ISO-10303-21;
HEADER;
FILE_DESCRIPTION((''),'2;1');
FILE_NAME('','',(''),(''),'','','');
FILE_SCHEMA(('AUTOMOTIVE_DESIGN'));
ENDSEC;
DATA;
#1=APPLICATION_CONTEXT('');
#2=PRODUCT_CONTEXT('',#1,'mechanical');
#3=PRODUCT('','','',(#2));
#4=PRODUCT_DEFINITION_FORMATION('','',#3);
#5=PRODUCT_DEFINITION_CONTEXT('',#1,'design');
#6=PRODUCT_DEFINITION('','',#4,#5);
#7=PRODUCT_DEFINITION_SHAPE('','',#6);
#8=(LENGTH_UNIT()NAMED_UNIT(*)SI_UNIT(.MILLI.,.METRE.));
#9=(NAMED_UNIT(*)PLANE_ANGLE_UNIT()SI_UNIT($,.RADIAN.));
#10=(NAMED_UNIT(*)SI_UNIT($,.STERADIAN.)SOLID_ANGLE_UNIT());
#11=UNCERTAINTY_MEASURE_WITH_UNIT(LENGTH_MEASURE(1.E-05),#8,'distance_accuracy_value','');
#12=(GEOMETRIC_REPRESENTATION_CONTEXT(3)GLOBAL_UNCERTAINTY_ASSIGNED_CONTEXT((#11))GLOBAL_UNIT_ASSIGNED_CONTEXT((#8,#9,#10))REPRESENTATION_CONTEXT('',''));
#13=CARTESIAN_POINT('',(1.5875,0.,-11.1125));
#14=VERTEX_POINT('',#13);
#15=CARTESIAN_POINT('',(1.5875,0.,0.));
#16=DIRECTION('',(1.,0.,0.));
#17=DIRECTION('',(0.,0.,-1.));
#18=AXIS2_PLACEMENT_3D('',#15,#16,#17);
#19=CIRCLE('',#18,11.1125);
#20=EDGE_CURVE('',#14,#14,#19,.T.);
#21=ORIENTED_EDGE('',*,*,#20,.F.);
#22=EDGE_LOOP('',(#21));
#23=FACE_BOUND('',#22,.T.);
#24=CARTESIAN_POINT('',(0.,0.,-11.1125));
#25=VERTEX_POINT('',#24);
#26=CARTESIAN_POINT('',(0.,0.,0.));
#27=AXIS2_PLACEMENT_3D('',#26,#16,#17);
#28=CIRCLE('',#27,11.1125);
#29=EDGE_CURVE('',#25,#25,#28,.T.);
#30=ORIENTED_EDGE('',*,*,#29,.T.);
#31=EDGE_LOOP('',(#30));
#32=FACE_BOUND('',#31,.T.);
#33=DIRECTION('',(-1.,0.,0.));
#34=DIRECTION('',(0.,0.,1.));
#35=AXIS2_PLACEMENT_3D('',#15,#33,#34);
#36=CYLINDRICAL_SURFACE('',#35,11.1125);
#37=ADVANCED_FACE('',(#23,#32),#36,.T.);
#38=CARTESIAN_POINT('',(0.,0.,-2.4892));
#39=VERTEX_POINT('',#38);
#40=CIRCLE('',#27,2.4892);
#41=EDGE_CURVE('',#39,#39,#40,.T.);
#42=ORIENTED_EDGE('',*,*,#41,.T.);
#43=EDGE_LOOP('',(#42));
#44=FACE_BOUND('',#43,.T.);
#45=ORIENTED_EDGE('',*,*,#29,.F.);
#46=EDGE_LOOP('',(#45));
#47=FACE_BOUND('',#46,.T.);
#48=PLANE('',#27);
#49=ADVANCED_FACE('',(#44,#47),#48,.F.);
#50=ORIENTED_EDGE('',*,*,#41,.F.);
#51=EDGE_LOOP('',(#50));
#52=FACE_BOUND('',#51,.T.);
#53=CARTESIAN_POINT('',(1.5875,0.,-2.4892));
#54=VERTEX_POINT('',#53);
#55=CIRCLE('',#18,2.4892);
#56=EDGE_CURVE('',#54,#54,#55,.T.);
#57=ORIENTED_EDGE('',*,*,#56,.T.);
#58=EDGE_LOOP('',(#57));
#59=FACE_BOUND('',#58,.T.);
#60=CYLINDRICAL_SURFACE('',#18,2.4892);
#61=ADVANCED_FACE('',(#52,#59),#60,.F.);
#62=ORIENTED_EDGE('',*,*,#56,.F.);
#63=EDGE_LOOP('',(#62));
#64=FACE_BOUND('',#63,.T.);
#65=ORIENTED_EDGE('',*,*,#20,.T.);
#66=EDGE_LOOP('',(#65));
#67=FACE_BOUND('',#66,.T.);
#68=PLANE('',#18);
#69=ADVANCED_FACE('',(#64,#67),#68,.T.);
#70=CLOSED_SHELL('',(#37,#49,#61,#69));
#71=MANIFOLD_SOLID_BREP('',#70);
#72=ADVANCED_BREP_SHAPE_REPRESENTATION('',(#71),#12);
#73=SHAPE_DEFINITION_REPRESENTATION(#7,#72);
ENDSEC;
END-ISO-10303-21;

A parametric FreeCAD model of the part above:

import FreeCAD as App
import Part
import Sketcher
from FreeCAD import Vector
Q = App.Units.Quantity

doc = App.newDocument("Part")
params = doc.addObject("Spreadsheet::Sheet", "Params")
for row, (alias, value) in enumerate([
    ("sketch1_diameter", "0.875 in"),
    ("pad1_length", "0.0625 in"),
    ("sketch2_diameter", "0.196 in"),
    ("hole_diameter", "0.196 in"),
    ("hole_depth", "15 mm"),
], start=1):
    params.set(f"A{row}", alias)
    params.set(f"B{row}", "=" + value)
    params.setAlias(f"B{row}", alias)

body = doc.addObject("PartDesign::Body", "Body")

# Sketch on YZ plane
sketch1 = body.newObject("Sketcher::SketchObject", "Sketch")
sketch1.AttachmentSupport = (doc.getObject("YZ_Plane"), [""])
sketch1.MapMode = "FlatFace"
sketch1.addGeometry(Part.Circle(Vector(0, 0, 0), Vector(0, 0, 1), 11), False)
sketch1.addConstraint([
    Sketcher.Constraint("Coincident", 0, 3, -1, 1),
    Sketcher.Constraint("Diameter", 0, Q("0.875 in")),
])
sketch1.setExpression("Constraints[1]", "Params.sketch1_diameter")
pad1 = body.newObject("PartDesign::Pad", "Pad")
pad1.Profile = sketch1
pad1.setExpression("Length", "Params.pad1_length")

# Sketch on YZ plane
sketch2 = body.newObject("Sketcher::SketchObject", "Sketch001")
sketch2.AttachmentSupport = (doc.getObject("YZ_Plane"), [""])
sketch2.MapMode = "FlatFace"
sketch2.AttachmentOffset = App.Placement(Vector(0, 0, 0.0625 * 25.4), App.Rotation())
sketch2.addGeometry(Part.Circle(Vector(0, 0, 0), Vector(0, 0, 1), 2.5), False)
sketch2.addConstraint([
    Sketcher.Constraint("Coincident", 0, 3, -1, 1),
    Sketcher.Constraint("Diameter", 0, Q("0.196 in")),
])
sketch2.setExpression("Constraints[1]", "Params.sketch2_diameter")
doc.recompute()
hole = body.newObject("PartDesign::Hole", "Hole")
hole.Profile = sketch2
hole.ThreadType = "None"
hole.setExpression("Diameter", "Params.hole_diameter")
hole.DepthType = "Dimension"
hole.setExpression("Depth", "Params.hole_depth")
hole.DrillPoint = "Angled"
hole.DrillPointAngle = 118

doc.recompute()
